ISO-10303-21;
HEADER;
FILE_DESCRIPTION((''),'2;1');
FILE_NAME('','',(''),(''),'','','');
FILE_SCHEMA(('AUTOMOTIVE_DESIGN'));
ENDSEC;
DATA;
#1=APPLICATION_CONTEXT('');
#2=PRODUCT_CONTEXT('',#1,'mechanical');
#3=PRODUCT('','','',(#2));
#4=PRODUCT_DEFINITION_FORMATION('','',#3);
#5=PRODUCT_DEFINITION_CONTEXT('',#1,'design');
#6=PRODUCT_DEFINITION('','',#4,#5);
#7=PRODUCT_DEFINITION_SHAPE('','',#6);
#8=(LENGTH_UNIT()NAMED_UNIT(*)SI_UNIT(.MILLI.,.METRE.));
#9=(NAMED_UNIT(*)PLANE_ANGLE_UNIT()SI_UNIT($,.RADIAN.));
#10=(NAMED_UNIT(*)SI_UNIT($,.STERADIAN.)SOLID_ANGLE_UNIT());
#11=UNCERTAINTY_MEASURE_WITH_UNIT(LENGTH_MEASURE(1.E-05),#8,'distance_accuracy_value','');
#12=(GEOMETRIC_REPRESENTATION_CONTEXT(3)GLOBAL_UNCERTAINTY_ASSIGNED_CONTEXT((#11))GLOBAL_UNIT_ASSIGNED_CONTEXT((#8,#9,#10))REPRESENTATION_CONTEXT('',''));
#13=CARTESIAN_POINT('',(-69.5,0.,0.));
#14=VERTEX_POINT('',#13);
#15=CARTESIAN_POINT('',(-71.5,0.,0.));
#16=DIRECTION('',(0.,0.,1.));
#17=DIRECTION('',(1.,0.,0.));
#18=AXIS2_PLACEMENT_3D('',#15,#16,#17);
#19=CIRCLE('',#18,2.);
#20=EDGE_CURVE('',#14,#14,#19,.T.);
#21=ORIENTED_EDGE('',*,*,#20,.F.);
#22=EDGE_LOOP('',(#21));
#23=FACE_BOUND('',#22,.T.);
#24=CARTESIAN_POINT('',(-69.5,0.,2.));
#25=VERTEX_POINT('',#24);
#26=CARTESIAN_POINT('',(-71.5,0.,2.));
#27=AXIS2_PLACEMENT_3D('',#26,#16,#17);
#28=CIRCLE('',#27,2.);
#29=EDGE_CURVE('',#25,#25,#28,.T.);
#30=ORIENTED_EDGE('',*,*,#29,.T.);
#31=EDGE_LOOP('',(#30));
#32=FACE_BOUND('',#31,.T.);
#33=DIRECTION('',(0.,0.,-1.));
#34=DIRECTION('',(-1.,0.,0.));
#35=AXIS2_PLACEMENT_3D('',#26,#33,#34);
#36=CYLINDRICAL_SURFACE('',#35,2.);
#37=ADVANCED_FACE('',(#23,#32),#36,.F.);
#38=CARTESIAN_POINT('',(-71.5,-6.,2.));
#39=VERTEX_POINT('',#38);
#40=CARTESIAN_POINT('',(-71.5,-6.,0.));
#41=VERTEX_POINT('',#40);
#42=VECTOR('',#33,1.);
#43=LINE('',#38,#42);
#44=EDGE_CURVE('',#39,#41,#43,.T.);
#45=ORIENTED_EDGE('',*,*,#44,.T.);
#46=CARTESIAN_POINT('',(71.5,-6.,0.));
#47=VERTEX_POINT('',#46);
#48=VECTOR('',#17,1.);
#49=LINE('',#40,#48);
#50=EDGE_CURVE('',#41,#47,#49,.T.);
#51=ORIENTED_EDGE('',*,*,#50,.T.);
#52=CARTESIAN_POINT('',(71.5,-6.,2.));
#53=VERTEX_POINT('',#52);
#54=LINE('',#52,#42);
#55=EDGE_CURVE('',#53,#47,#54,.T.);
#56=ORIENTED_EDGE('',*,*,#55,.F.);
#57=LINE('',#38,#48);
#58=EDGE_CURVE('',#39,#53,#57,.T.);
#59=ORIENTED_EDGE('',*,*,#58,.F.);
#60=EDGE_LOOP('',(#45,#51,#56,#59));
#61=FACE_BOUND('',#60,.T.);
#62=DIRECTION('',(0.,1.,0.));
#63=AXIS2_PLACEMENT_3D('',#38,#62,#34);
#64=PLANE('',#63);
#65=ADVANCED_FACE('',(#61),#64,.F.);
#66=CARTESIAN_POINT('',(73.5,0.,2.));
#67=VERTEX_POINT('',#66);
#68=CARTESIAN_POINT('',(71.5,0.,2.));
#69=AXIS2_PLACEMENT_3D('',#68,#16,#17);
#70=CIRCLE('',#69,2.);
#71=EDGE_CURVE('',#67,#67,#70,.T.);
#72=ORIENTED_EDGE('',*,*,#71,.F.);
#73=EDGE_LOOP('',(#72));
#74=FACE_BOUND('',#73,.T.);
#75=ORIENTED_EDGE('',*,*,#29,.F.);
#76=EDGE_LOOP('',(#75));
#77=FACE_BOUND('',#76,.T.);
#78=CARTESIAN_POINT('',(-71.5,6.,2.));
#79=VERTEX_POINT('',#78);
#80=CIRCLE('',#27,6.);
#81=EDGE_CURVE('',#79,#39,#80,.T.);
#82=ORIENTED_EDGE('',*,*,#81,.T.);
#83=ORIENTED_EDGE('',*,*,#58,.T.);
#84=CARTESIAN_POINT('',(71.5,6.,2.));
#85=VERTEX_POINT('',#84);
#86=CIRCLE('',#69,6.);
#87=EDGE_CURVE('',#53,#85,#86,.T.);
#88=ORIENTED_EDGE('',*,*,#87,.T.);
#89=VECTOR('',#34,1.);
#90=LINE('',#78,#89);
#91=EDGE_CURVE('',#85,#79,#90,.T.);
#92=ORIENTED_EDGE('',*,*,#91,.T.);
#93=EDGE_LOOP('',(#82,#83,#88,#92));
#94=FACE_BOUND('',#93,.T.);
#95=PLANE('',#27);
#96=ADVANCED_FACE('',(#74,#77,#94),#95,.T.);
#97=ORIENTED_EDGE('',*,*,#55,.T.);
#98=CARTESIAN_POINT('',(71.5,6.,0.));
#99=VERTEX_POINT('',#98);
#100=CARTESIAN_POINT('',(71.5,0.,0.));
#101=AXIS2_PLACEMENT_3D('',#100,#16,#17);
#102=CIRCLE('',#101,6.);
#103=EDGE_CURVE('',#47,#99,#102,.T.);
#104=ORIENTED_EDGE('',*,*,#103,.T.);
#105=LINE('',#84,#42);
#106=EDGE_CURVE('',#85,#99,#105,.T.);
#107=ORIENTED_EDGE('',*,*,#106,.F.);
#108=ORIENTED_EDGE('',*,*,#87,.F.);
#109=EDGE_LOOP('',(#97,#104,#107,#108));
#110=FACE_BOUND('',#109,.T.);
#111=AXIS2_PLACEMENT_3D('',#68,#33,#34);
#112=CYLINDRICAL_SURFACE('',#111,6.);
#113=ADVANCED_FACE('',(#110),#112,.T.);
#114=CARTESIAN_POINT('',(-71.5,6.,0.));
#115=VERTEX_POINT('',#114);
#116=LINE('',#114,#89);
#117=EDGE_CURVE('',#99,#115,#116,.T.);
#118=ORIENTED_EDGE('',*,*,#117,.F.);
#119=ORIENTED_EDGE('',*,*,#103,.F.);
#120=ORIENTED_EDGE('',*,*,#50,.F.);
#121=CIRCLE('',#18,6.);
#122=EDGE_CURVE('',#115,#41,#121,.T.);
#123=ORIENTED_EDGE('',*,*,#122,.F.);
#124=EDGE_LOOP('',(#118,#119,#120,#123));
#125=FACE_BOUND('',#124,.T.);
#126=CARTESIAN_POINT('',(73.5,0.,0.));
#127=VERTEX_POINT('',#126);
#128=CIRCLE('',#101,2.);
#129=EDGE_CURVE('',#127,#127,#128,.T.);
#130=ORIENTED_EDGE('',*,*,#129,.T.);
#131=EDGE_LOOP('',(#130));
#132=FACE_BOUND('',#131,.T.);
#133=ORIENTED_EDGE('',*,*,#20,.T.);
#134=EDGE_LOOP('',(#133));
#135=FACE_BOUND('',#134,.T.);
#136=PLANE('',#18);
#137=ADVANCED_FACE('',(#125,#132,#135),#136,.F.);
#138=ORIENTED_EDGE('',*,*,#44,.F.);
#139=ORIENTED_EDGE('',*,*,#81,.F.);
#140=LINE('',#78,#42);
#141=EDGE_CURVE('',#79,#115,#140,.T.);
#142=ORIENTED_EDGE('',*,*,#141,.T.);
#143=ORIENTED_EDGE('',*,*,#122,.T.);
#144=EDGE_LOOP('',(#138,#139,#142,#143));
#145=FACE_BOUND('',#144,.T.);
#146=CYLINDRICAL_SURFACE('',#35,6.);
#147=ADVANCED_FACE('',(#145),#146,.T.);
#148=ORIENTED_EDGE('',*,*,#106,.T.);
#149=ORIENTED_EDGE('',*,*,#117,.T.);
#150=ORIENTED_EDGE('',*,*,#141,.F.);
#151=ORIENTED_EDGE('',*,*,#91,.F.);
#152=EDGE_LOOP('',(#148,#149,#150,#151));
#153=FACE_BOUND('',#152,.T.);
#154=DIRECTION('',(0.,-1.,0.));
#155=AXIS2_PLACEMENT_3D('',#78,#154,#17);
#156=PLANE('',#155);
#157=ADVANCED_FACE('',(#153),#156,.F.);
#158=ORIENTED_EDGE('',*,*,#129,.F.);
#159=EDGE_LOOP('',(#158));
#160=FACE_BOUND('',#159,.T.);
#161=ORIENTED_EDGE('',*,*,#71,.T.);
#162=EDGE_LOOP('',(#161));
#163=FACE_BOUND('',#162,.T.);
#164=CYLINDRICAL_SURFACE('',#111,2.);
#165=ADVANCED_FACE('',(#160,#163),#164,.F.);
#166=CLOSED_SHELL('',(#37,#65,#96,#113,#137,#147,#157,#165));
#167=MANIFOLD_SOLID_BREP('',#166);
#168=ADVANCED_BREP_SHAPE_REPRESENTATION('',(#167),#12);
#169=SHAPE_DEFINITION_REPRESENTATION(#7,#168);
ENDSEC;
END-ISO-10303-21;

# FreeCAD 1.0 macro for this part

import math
import FreeCAD as App
import Part
import Sketcher

V = App.Vector
Q = App.Units.Quantity

doc = App.newDocument("Part")
body = doc.addObject("PartDesign::Body", "Body")

# Sketch on XY plane
sketch1 = doc.addObject("Sketcher::SketchObject", "Sketch")
body.addObject(sketch1)
sketch1.AttachmentSupport = (doc.XY_Plane, [""])
sketch1.MapMode = "FlatFace"
sketch1.addGeometry([
    Part.LineSegment(V(71.5, 6, 0), V(-71.5, 6, 0)),  # 0
    Part.ArcOfCircle(Part.Circle(V(-71.5, 0, 0), V(0, 0, 1), 6), math.radians(90), math.radians(270)),  # 1
    Part.LineSegment(V(-71.5, -6, 0), V(71.5, -6, 0)),  # 2
    Part.ArcOfCircle(Part.Circle(V(71.5, 0, 0), V(0, 0, 1), 6), math.radians(-90), math.radians(90)),  # 3
    Part.Circle(V(71.5, 0, 0), V(0, 0, 1), 2),  # 4
    Part.Circle(V(-71.5, 0, 0), V(0, 0, 1), 2),  # 5
], False)
sketch1.addConstraint([
    Sketcher.Constraint("Tangent", 0, 2, 1, 1),
    Sketcher.Constraint("Tangent", 1, 2, 2, 1),
    Sketcher.Constraint("Tangent", 2, 2, 3, 1),
    Sketcher.Constraint("Tangent", 3, 2, 0, 1),
    Sketcher.Constraint("Horizontal", 0),
    Sketcher.Constraint("Horizontal", 2),
    Sketcher.Constraint("Coincident", 4, 3, 3, 3),
    Sketcher.Constraint("Coincident", 5, 3, 1, 3),
    Sketcher.Constraint("Equal", 4, 5),
    Sketcher.Constraint("Symmetric", 1, 3, 3, 3, -1, 1),
    Sketcher.Constraint("Diameter", 4, Q("4 mm")),
    Sketcher.Constraint("Radius", 1, Q("6 mm")),
    Sketcher.Constraint("DistanceX", 0, 2, 0, 1, Q("143 mm")),
])
pad1 = doc.addObject("PartDesign::Pad", "Pad")
body.addObject(pad1)
pad1.Profile = sketch1
pad1.Length = 2

doc.recompute()
